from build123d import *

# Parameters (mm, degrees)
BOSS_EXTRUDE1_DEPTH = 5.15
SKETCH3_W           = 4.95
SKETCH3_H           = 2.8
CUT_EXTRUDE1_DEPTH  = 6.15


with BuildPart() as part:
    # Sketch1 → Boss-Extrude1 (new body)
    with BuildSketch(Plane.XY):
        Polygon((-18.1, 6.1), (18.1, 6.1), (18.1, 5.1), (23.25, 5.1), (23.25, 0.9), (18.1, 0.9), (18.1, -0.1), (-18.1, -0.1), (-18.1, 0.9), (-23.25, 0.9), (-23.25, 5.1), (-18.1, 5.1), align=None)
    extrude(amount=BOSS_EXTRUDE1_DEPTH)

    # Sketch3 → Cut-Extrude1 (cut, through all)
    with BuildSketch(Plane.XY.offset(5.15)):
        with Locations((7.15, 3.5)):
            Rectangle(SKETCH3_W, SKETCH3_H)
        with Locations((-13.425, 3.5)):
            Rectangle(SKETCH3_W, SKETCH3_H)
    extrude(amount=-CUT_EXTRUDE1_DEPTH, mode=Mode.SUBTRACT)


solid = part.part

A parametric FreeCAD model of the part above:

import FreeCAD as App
import Part
import Sketcher

V = App.Vector
Q = App.Units.Quantity


def add_polygon(sketch, points):
    """Adds a closed chain of lines whose ends are joined by coincident constraints."""
    first, n = sketch.GeometryCount, len(points)
    for a, b in zip(points, points[1:] + points[:1]):
        sketch.addGeometry(Part.LineSegment(App.Vector(*a, 0), App.Vector(*b, 0)), False)
    for i in range(n):
        sketch.addConstraint(Sketcher.Constraint("Coincident", first + i, 2, first + (i + 1) % n, 1))

doc = App.newDocument("Part")
body = doc.addObject("PartDesign::Body", "Body")

# Sketch on XY plane
sketch1 = body.newObject("Sketcher::SketchObject", "Sketch")
sketch1.AttachmentSupport = (doc.getObject("XY_Plane"), [""])
sketch1.MapMode = "FlatFace"
add_polygon(sketch1, [(18.1, 6.1), (-18.1, 6.1), (-18.1, 5.1), (-23.2, 5.1), (-23.2, 0.9), (-18.1, 0.9), (-18.1, -0.1), (18.1, -0.1), (18.1, 0.9), (23.2, 0.9), (23.2, 5.1), (18.1, 5.1)])  # lines 0-11
sketch1.addConstraint([
    Sketcher.Constraint("Horizontal", 0),
    Sketcher.Constraint("Vertical", 1),
    Sketcher.Constraint("Horizontal", 2),
    Sketcher.Constraint("Vertical", 3),
    Sketcher.Constraint("Horizontal", 4),
    Sketcher.Constraint("Vertical", 5),
    Sketcher.Constraint("Horizontal", 6),
    Sketcher.Constraint("Vertical", 7),
    Sketcher.Constraint("Horizontal", 8),
    Sketcher.Constraint("Vertical", 9),
    Sketcher.Constraint("Horizontal", 10),
    Sketcher.Constraint("Vertical", 11),
    Sketcher.Constraint("Symmetric", 4, 2, 7, 2, -2),
    Sketcher.Constraint("Symmetric", 2, 2, 9, 2, -2),
    Sketcher.Constraint("Vertical", 1, 2, 4, 2),
    Sketcher.Constraint("Vertical", 7, 2, 10, 2),
    Sketcher.Constraint("Equal", 1, 5),
    Sketcher.Constraint("DistanceY", 1, 2, 1, 1, Q("1 mm")),
    Sketcher.Constraint("DistanceX", 0, 2, 0, 1, Q("36.2 mm")),
    Sketcher.Constraint("DistanceY", 3, 2, 3, 1, Q("4.2 mm")),
    Sketcher.Constraint("DistanceX", 2, 2, 2, 1, Q("5.15 mm")),
    Sketcher.Constraint("DistanceY", -1, 1, 0, 2, Q("6.1 mm")),
])
pad1 = body.newObject("PartDesign::Pad", "Pad")
pad1.Profile = sketch1
pad1.Length = 5.15

# Sketch on XY plane
sketch2 = body.newObject("Sketcher::SketchObject", "Sketch001")
sketch2.AttachmentSupport = (doc.getObject("XY_Plane"), [""])
sketch2.MapMode = "FlatFace"
sketch2.AttachmentOffset = App.Placement(V(0, 0, 5.15), App.Rotation())
add_polygon(sketch2, [(4.7, 4.9), (4.7, 2.1), (9.6, 2.1), (9.6, 4.9)])  # lines 0-3
add_polygon(sketch2, [(-15.9, 4.9), (-15.9, 2.1), (-10.9, 2.1), (-10.9, 4.9)])  # lines 4-7
sketch2.addConstraint([
    Sketcher.Constraint("Vertical", 0),
    Sketcher.Constraint("Horizontal", 1),
    Sketcher.Constraint("Vertical", 2),
    Sketcher.Constraint("Horizontal", 3),
    Sketcher.Constraint("Vertical", 4),
    Sketcher.Constraint("Horizontal", 5),
    Sketcher.Constraint("Vertical", 6),
    Sketcher.Constraint("Horizontal", 7),
    Sketcher.Constraint("Horizontal", 1, 2, 4, 2),
    Sketcher.Constraint("Horizontal", 3, 2, 6, 2),
    Sketcher.Constraint("Equal", 3, 5),
    Sketcher.Constraint("DistanceY", 0, 2, 0, 1, Q("2.8 mm")),
    Sketcher.Constraint("DistanceX", 1, 1, 1, 2, Q("4.95 mm")),
    Sketcher.Constraint("DistanceY", -1, 1, 0, 2, Q("2.1 mm")),
    Sketcher.Constraint("DistanceX", 4, 2, -1, 1, Q("15.9 mm")),
    Sketcher.Constraint("DistanceX", -1, 1, 0, 2, Q("4.675 mm")),
])
pocket1 = body.newObject("PartDesign::Pocket", "Pocket")
pocket1.Profile = sketch2
pocket1.Type = "ThroughAll"

doc.recompute()
